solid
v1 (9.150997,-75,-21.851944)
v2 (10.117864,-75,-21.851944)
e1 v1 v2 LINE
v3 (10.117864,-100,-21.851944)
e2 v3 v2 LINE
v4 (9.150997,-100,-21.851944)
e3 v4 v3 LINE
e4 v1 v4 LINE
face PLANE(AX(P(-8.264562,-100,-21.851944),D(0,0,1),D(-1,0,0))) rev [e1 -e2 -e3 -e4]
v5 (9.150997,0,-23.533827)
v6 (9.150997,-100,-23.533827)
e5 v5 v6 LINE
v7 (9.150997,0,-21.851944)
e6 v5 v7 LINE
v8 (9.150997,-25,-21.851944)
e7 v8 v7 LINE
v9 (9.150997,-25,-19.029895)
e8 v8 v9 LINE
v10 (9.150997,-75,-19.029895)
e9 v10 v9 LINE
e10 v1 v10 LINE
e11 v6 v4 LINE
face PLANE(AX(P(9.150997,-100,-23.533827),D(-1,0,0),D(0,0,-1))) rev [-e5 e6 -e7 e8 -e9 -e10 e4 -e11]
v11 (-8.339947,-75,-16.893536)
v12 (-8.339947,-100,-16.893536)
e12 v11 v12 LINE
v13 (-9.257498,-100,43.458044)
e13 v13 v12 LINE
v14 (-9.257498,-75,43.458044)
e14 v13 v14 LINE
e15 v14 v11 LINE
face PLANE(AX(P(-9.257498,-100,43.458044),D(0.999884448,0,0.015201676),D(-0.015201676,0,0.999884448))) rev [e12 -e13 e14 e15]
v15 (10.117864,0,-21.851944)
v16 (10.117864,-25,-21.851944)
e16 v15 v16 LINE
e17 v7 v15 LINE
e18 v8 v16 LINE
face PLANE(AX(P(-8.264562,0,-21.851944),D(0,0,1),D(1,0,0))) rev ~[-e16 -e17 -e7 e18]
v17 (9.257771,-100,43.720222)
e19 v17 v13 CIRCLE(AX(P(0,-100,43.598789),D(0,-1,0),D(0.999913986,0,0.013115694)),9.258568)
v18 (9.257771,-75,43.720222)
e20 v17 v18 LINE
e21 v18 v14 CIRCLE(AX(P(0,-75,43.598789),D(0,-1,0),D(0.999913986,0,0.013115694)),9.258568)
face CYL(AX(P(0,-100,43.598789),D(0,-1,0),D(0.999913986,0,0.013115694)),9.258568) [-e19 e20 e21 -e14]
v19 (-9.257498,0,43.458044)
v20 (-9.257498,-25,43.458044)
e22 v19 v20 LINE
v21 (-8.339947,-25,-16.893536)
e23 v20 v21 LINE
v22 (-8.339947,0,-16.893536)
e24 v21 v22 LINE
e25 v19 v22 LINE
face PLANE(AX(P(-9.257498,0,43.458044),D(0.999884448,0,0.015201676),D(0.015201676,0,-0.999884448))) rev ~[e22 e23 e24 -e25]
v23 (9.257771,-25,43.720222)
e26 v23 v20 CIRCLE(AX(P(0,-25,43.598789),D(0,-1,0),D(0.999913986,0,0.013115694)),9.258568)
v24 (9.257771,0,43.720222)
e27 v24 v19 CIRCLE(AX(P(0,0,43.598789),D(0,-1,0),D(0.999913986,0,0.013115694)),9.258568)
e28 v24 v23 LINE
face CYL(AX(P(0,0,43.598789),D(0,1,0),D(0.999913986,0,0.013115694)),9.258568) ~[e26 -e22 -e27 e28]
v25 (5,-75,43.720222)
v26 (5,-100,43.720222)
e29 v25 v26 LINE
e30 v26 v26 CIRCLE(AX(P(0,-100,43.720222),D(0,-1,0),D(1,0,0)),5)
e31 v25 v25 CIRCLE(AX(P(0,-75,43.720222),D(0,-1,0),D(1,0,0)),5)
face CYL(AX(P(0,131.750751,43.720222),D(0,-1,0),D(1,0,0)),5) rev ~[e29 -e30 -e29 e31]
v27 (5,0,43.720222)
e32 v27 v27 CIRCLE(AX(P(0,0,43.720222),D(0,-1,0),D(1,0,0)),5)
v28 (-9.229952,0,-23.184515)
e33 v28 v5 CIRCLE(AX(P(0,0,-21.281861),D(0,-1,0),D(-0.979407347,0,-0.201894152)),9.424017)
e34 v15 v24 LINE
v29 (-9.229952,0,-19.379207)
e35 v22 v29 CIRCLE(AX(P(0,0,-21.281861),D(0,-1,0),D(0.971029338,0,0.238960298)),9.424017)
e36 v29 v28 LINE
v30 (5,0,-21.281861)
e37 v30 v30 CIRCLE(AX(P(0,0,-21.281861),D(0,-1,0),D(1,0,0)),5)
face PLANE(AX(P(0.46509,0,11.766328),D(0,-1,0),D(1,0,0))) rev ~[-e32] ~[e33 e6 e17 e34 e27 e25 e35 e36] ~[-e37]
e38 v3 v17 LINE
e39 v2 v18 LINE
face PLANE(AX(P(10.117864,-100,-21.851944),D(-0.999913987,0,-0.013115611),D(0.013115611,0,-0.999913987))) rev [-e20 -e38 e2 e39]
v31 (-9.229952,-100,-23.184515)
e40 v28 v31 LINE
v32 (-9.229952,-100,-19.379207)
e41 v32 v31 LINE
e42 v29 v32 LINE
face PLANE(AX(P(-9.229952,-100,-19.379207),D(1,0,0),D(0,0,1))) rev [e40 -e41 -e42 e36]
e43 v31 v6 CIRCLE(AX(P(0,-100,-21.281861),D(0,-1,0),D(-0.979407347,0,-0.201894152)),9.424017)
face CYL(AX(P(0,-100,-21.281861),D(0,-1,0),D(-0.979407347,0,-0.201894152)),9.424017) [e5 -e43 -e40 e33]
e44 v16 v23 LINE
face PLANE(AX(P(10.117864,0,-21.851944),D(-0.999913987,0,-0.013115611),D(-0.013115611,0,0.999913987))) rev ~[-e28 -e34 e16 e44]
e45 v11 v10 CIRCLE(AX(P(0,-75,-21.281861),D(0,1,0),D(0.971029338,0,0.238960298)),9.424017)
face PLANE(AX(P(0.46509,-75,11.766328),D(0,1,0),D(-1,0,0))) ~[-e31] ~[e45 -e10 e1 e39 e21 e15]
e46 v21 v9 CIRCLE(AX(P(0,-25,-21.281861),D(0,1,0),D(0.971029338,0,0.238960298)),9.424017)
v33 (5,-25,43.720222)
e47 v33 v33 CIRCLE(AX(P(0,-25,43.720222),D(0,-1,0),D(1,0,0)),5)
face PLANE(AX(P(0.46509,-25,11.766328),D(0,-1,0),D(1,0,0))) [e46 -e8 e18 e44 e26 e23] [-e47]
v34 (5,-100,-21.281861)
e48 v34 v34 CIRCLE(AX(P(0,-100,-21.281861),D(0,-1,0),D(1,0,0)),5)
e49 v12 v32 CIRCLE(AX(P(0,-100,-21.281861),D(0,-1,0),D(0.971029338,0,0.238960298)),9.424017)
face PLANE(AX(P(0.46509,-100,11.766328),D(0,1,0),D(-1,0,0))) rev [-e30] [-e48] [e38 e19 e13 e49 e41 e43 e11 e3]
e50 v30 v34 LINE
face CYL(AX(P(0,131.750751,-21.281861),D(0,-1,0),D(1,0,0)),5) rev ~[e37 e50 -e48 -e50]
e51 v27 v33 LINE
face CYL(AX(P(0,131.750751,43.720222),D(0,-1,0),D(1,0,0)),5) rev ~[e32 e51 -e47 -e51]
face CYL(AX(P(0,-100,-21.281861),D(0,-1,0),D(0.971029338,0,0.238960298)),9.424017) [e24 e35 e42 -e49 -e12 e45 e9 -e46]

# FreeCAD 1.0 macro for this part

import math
import FreeCAD as App
import Part
import Sketcher

doc = App.newDocument("Part")
body = doc.addObject("PartDesign::Body", "Body")

sketch1 = body.newObject("Sketcher::SketchObject", "Sketch")
sketch1.AttachmentSupport = (doc.getObject("XZ_Plane"), [""])
sketch1.MapMode = "FlatFace"
sketch1.addGeometry([
    Part.LineSegment(App.Vector(-9.229952, -19.379207, 0), App.Vector(-9.229952, -23.184515, 0)),
    Part.ArcOfCircle(Part.Circle(App.Vector(0, -21.281861, 0), App.Vector(0, 0, 1), 9.424017), math.radians(-168.352254), math.radians(-13.825184)),
    Part.LineSegment(App.Vector(9.150997, -23.533827, 0), App.Vector(9.150997, -19.029895, 0)),
    Part.ArcOfCircle(Part.Circle(App.Vector(0, -21.281861, 0), App.Vector(0, 0, 1), 9.424017), math.radians(13.825184), math.radians(168.352254)),
], False)
sketch1.addConstraint([
    Sketcher.Constraint("Coincident", 0, 2, 1, 1),
    Sketcher.Constraint("Coincident", 1, 2, 2, 1),
    Sketcher.Constraint("Coincident", 2, 2, 3, 1),
    Sketcher.Constraint("Coincident", 3, 2, 0, 1),
    Sketcher.Constraint("Vertical", 0),
    Sketcher.Constraint("Vertical", 2),
    Sketcher.Constraint("Coincident", 3, 3, 1, 3),
    Sketcher.Constraint("Equal", 1, 3),
    Sketcher.Constraint("PointOnObject", 1, 3, -2),
    Sketcher.Constraint("Radius", 1, 9.424017),
    Sketcher.Constraint("DistanceY", 0, 2, 0, 1, 3.805308),
    Sketcher.Constraint("DistanceY", 2, 1, 2, 2, 4.503932),
    Sketcher.Constraint("DistanceY", 1, 3, -1, 1, 21.281861),
])
pad1 = body.newObject("PartDesign::Pad", "Pad")
pad1.Profile = sketch1
pad1.Length = 50

sketch2 = body.newObject("Sketcher::SketchObject", "Sketch001")
sketch2.AttachmentSupport = (doc.getObject("XZ_Plane"), [""])
sketch2.MapMode = "FlatFace"
sketch2.addGeometry([
    Part.LineSegment(App.Vector(-9.257498, 43.458044, 0), App.Vector(-8.264562, -21.851944, 0)),
    Part.LineSegment(App.Vector(-8.264562, -21.851944, 0), App.Vector(10.117864, -21.851944, 0)),
    Part.LineSegment(App.Vector(10.117864, -21.851944, 0), App.Vector(9.257771, 43.720222, 0)),
    Part.ArcOfCircle(Part.Circle(App.Vector(0, 43.598789, 0), App.Vector(0, 0, 1), 9.258568), math.radians(0.751495), math.radians(180.871024)),
], False)
sketch2.addConstraint([
    Sketcher.Constraint("Coincident", 0, 2, 1, 1),
    Sketcher.Constraint("Coincident", 1, 2, 2, 1),
    Sketcher.Constraint("Tangent", 2, 2, 3, 1),
    Sketcher.Constraint("Tangent", 3, 2, 0, 1),
    Sketcher.Constraint("Horizontal", 1),
    Sketcher.Constraint("PointOnObject", 3, 3, -2),
    Sketcher.Constraint("Radius", 3, 9.258568),
    Sketcher.Constraint("DistanceX", 1, 1, 1, 2, 18.382426),
    Sketcher.Constraint("DistanceY", -1, 1, 3, 3, 43.598789),
    Sketcher.Constraint("DistanceX", 0, 2, 3, 3, 8.264562),
    Sketcher.Constraint("DistanceY", 0, 2, 3, 2, 65.309988),
])
pad2 = body.newObject("PartDesign::Pad", "Pad001")
pad2.Profile = sketch2
pad2.Length = 25
body2 = doc.addObject("PartDesign::Body", "Body001")
doc.recompute()

body2.BaseFeature = body
doc.recompute()

mirroring = doc.addObject("Part::Mirroring", "Mirroring")
mirroring.Source = body
mirroring.Base = App.Vector(-0.010882, -50, -21.281861)
mirroring.Normal = App.Vector(0, -1, 0)
body3 = doc.addObject("PartDesign::Body", "Body002")
body3.BaseFeature = mirroring
boolean = body2.newObject("PartDesign::Boolean", "Boolean")
boolean.Type = "Fuse"
boolean.addObjects([body3])
doc.recompute()

sketch3 = body2.newObject("Sketcher::SketchObject", "Sketch002")
sketch3.AttachmentSupport = (doc.getObject("XZ_Plane001"), [""])
sketch3.MapMode = "FlatFace"
sketch3.addGeometry([
    Part.Circle(App.Vector(0, 43.720222, 0), App.Vector(0, 0, 1), 5),
    Part.Circle(App.Vector(0, -21.281861, 0), App.Vector(0, 0, 1), 5),
], False)
sketch3.addConstraint([
    Sketcher.Constraint("Equal", 0, 1),
    Sketcher.Constraint("PointOnObject", 0, 3, -2),
    Sketcher.Constraint("PointOnObject", 1, 3, -2),
    Sketcher.Constraint("Diameter", 0, 10.0),
    Sketcher.Constraint("DistanceY", 1, 3, -1, 1, 21.281861),
    Sketcher.Constraint("DistanceY", -1, 1, 0, 3, 43.720222),
])
doc.recompute()
hole = body2.newObject("PartDesign::Hole", "Hole")
hole.Profile = sketch3
hole.ThreadType = "None"
hole.Diameter = 10
hole.DepthType = "ThroughAll"
hole.Reversed = True
mirroring.Visibility = False

doc.recompute()
